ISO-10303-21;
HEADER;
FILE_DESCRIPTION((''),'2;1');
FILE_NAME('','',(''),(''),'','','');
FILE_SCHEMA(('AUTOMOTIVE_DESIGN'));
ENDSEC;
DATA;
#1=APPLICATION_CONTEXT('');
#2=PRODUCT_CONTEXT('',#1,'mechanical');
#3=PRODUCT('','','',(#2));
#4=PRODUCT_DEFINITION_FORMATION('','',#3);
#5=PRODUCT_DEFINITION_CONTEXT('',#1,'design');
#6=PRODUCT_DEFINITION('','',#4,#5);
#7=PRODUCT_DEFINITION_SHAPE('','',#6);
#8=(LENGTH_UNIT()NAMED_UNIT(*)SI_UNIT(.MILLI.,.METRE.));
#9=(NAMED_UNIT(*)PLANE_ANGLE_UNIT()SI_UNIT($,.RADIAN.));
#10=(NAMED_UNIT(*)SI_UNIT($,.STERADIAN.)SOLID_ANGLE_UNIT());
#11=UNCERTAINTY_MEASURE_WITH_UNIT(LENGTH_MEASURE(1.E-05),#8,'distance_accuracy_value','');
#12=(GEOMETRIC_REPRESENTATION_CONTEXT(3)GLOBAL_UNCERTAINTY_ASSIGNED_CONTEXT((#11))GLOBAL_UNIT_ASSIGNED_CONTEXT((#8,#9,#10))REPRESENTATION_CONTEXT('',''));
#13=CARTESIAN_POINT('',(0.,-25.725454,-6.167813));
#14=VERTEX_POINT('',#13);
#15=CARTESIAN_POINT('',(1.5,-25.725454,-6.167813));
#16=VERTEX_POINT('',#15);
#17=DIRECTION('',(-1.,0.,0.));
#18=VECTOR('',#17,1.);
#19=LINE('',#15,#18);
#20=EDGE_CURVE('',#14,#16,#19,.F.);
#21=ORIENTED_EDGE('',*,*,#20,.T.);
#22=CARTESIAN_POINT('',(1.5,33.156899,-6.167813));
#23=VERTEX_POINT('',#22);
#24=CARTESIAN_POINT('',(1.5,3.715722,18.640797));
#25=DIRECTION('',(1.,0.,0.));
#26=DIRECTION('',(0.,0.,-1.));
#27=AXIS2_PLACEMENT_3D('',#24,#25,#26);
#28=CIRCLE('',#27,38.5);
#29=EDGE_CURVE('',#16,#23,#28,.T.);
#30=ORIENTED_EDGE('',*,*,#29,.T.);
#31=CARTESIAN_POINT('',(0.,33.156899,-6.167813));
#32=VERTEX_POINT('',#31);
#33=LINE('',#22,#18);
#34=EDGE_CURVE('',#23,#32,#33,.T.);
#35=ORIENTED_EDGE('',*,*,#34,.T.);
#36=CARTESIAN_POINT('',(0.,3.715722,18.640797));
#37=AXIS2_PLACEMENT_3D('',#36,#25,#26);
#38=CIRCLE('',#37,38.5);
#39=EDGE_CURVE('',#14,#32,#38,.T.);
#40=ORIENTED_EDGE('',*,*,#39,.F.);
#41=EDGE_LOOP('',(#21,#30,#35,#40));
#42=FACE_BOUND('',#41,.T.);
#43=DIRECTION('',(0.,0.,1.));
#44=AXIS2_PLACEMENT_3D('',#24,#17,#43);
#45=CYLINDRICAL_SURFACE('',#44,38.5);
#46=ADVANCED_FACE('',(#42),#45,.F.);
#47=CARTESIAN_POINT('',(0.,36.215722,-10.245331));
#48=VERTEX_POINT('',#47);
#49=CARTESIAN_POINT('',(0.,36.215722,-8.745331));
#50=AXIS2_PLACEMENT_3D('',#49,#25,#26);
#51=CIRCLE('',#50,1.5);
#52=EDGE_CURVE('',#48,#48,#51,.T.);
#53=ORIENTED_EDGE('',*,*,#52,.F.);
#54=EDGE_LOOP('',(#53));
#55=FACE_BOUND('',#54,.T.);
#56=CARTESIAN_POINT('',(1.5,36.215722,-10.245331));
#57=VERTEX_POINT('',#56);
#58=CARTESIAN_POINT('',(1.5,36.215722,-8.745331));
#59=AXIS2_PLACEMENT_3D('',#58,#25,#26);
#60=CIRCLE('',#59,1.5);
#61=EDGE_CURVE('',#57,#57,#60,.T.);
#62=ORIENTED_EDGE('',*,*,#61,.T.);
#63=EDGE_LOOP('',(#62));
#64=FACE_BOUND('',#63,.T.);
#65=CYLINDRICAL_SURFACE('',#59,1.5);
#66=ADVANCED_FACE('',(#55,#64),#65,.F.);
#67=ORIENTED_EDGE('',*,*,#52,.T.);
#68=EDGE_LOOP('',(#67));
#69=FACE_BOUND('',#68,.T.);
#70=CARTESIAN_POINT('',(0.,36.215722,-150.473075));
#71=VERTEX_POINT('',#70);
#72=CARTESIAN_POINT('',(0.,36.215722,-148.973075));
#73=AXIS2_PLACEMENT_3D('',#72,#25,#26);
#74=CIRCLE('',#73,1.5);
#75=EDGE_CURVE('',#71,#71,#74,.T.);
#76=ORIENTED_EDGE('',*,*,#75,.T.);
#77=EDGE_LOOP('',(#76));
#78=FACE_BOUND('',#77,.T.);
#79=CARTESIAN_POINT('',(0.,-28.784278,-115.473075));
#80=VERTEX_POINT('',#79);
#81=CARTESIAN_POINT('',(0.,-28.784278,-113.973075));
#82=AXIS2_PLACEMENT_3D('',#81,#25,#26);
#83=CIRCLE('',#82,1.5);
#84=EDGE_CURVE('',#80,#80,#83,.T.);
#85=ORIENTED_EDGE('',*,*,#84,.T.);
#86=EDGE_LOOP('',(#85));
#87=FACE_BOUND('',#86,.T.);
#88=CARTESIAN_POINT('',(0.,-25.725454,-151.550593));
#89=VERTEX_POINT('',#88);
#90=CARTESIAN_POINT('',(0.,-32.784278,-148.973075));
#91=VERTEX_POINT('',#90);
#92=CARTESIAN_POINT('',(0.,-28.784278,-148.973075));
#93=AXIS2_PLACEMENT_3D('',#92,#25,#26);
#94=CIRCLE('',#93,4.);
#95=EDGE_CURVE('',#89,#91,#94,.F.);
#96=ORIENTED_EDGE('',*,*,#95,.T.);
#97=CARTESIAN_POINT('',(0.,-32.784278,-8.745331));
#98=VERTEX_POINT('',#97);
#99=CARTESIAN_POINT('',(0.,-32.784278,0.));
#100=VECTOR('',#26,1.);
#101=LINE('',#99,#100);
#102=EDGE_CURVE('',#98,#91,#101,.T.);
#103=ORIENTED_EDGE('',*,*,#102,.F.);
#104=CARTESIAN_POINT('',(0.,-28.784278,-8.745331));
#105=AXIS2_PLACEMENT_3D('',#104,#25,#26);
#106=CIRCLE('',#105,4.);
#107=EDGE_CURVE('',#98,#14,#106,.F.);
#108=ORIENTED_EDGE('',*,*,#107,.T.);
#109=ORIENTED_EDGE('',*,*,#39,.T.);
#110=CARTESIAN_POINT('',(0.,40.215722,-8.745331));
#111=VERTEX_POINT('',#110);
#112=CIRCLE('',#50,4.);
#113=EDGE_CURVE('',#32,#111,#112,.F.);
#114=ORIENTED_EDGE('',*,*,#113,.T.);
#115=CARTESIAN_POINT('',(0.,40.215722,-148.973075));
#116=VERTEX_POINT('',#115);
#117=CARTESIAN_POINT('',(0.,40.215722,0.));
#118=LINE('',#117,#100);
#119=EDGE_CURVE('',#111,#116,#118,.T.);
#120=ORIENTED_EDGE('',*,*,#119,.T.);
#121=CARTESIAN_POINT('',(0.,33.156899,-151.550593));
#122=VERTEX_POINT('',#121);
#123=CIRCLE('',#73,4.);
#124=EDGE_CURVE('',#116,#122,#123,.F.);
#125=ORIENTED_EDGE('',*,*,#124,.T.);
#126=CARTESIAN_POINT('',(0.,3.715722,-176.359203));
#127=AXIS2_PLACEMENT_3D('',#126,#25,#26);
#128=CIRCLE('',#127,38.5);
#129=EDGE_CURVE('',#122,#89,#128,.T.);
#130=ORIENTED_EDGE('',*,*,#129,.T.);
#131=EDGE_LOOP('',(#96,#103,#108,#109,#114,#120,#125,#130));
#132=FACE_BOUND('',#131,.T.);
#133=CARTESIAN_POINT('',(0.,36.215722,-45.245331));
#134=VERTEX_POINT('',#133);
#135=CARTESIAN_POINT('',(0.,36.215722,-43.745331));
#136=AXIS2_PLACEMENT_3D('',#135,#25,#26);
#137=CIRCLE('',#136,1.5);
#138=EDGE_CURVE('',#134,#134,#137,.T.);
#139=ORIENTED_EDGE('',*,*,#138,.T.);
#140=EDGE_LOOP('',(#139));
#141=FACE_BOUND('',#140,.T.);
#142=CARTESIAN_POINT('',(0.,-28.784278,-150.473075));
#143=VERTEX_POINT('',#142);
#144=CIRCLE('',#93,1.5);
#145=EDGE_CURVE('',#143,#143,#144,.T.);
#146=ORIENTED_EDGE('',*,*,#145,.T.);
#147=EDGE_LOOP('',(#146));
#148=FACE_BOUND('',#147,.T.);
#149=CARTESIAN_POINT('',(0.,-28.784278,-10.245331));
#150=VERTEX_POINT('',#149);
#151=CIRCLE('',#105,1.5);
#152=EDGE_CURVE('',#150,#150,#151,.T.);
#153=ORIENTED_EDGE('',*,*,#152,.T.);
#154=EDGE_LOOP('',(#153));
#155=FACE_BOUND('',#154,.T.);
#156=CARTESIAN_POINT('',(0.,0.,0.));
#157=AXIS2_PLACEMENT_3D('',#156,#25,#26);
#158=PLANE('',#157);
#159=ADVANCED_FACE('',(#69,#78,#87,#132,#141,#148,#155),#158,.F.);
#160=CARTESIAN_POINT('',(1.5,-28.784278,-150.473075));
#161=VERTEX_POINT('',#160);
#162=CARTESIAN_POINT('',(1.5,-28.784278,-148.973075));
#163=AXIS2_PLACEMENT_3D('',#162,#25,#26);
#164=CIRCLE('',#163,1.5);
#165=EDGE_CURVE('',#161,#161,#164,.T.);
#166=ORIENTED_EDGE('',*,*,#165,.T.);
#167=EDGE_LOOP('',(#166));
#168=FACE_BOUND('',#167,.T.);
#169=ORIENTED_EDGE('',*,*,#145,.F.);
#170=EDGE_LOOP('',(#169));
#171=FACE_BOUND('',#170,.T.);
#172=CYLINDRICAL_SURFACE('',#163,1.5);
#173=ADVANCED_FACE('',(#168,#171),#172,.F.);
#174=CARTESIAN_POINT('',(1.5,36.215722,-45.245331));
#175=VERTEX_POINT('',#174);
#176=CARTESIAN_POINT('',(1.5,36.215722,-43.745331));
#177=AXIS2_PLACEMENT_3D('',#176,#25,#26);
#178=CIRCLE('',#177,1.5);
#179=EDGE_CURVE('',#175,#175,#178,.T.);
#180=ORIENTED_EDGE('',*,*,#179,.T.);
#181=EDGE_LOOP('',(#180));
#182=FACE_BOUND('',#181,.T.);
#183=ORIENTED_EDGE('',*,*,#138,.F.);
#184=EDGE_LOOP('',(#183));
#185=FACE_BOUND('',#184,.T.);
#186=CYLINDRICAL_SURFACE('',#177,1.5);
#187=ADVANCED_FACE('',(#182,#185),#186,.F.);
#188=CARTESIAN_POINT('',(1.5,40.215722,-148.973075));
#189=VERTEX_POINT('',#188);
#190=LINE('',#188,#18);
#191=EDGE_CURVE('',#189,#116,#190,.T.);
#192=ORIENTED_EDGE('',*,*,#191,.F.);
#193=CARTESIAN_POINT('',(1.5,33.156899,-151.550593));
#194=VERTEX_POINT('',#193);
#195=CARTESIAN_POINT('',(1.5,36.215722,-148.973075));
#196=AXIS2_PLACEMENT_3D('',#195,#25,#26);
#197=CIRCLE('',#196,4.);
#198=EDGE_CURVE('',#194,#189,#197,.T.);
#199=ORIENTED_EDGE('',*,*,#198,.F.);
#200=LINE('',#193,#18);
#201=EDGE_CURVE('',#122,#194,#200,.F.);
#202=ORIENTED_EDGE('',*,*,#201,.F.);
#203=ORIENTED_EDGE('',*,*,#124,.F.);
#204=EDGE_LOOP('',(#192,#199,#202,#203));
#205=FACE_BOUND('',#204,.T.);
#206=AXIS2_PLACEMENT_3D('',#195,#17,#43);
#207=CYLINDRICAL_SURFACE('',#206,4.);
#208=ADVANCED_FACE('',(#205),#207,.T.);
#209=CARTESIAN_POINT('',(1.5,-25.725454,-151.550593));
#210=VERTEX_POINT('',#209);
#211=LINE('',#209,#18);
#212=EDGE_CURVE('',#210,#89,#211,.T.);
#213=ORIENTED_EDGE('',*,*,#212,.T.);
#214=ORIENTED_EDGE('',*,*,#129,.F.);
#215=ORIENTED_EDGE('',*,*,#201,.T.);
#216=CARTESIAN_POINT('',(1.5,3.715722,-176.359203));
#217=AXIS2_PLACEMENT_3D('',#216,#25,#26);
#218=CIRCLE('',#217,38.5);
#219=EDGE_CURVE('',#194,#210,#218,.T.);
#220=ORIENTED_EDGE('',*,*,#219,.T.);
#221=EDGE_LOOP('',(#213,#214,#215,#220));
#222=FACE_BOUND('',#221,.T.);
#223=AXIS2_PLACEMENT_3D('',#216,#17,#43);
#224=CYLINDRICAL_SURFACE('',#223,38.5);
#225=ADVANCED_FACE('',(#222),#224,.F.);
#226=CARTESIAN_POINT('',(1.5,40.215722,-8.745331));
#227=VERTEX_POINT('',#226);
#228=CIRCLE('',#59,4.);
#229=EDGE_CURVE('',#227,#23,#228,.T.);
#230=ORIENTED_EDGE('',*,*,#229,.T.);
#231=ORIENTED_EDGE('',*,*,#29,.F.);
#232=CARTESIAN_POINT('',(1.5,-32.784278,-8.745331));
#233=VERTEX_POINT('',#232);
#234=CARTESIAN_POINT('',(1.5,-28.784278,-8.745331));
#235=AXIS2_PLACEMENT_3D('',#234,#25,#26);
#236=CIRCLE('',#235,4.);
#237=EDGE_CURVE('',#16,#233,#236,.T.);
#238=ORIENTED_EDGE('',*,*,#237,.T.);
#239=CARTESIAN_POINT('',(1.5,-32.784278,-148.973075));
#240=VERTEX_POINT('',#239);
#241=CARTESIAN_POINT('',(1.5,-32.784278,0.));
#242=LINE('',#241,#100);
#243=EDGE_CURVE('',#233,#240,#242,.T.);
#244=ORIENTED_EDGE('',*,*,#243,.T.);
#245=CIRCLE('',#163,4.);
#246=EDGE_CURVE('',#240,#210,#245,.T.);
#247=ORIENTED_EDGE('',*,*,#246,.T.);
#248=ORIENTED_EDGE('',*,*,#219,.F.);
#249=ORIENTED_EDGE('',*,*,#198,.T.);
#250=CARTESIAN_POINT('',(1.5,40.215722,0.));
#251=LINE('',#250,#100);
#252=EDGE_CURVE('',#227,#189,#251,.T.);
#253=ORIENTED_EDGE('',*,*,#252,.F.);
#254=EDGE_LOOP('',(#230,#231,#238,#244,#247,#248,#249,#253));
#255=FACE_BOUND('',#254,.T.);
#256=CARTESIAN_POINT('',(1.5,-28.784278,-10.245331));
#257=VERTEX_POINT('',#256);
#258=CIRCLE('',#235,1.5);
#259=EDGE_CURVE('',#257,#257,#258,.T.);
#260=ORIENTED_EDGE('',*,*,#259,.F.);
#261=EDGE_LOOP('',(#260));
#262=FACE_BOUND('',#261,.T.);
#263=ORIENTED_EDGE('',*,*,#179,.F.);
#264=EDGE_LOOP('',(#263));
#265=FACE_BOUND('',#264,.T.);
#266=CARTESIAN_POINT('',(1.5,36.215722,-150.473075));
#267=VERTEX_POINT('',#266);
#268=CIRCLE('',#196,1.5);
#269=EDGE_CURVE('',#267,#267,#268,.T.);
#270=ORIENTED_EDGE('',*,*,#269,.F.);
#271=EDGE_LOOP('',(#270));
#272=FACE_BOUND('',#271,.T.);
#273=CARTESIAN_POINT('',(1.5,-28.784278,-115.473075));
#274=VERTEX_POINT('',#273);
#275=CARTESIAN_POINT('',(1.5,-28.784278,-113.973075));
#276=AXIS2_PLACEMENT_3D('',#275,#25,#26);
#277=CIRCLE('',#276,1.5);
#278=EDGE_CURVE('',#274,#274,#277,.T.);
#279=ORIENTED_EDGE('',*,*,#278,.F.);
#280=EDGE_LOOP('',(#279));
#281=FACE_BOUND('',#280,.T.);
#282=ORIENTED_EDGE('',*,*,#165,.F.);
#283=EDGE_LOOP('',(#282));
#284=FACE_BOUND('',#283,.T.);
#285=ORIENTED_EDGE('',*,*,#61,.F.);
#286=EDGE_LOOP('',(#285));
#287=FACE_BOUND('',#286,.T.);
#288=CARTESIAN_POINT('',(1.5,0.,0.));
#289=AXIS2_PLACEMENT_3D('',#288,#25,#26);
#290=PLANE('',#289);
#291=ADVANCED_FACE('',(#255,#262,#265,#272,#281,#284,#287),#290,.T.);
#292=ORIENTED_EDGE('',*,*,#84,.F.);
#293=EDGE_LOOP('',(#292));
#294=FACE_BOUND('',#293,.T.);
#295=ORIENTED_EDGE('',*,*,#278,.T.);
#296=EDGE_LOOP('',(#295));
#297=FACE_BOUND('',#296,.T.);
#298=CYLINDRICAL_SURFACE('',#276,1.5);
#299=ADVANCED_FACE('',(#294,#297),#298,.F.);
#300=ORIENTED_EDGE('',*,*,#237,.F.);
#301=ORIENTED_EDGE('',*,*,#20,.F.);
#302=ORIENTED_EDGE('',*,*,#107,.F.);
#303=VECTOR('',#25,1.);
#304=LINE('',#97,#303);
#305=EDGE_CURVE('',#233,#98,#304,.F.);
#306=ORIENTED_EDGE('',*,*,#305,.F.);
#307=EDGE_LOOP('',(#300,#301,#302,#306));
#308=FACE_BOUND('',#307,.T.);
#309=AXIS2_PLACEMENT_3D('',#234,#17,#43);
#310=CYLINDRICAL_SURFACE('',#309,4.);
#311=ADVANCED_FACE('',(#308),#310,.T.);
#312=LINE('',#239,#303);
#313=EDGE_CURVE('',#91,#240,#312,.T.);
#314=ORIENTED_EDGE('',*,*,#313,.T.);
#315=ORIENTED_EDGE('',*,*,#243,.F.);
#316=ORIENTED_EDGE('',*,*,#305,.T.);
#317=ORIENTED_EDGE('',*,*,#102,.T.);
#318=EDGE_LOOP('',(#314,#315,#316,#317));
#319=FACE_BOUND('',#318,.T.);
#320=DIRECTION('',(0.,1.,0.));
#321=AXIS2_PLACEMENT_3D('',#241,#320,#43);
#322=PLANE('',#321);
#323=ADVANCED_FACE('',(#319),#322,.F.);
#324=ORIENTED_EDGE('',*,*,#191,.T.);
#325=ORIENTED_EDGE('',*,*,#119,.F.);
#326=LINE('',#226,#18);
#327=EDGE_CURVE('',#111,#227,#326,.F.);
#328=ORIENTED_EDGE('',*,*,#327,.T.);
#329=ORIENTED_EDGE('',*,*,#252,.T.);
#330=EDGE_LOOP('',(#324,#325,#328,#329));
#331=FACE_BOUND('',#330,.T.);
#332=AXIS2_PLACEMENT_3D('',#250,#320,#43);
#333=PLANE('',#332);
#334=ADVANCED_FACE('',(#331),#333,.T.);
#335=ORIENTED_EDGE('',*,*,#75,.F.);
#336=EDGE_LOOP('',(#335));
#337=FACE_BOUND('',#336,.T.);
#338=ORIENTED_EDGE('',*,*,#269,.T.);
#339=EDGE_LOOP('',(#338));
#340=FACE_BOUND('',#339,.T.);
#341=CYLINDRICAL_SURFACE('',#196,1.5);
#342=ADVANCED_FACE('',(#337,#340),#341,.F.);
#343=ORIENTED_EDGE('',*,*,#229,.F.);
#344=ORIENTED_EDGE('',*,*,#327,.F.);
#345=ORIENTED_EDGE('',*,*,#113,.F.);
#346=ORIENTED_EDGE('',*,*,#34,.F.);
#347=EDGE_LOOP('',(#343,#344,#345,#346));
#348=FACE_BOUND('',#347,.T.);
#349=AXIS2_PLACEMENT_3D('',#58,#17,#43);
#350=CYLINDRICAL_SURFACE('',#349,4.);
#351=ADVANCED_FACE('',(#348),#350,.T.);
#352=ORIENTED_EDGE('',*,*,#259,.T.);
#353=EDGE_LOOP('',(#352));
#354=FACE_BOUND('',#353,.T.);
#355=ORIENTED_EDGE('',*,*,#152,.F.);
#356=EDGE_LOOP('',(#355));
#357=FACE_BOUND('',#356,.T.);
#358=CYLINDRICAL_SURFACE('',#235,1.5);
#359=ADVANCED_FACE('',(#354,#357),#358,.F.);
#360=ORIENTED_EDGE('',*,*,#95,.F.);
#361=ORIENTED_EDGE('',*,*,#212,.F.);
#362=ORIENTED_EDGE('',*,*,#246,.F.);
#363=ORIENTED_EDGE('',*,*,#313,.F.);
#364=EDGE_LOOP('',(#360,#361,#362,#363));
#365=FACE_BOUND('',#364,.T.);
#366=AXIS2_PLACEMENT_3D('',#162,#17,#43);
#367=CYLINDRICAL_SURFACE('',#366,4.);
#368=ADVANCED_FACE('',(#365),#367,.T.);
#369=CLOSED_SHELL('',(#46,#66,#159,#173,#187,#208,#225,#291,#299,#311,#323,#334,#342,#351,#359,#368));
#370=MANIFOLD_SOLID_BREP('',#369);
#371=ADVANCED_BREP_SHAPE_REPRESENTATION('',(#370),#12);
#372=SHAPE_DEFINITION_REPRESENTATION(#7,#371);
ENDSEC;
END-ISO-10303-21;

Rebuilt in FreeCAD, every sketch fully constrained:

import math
import FreeCAD as App
import Part
import Sketcher

V = App.Vector
Q = App.Units.Quantity


def edges_at(feature, points):
    """Names of the edges that pass closest to the given points."""
    edges = feature.Shape.Edges
    near = lambda p: min(range(len(edges)), key=lambda i: edges[i].distToShape(Part.Vertex(*p))[0])
    return sorted({f"Edge{near(p) + 1}" for p in points})

doc = App.newDocument("Part")
body = doc.addObject("PartDesign::Body", "Body")

# Sketch on YZ plane
sketch1 = body.newObject("Sketcher::SketchObject", "Sketch")
sketch1.AttachmentSupport = (doc.getObject("YZ_Plane"), [""])
sketch1.MapMode = "FlatFace"
sketch1.addGeometry(Part.LineSegment(V(40.215722, -164.111754, 0), V(40.215722, 6.393348, 0)), False)
sketch1.addGeometry(Part.ArcOfCircle(Part.Circle(V(3.715722, 18.640797, 0), V(0, 0, 1), 38.5), math.radians(-90), math.radians(-18.549)), False)
sketch1.addGeometry(Part.ArcOfCircle(Part.Circle(V(3.715722, 18.640797, 0), V(0, 0, 1), 38.5), math.radians(-161.451), math.radians(-90)), False)
sketch1.addGeometry(Part.LineSegment(V(-32.784278, 6.393348, 0), V(-32.784278, -164.111754, 0)), False)
sketch1.addGeometry(Part.ArcOfCircle(Part.Circle(V(3.715722, -176.359203, 0), V(0, 0, 1), 38.5), math.radians(18.549), math.radians(161.451)), False)
sketch1.addConstraint(Sketcher.Constraint("Coincident", 0, 2, 1, 2))
sketch1.addConstraint(Sketcher.Constraint("Tangent", 1, 1, 2, 2))
sketch1.addConstraint(Sketcher.Constraint("Coincident", 2, 1, 3, 1))
sketch1.addConstraint(Sketcher.Constraint("Coincident", 3, 2, 4, 2))
sketch1.addConstraint(Sketcher.Constraint("Coincident", 4, 1, 0, 1))
sketch1.addConstraint(Sketcher.Constraint("Vertical", 0))
sketch1.addConstraint(Sketcher.Constraint("Vertical", 3))
sketch1.addConstraint(Sketcher.Constraint("Equal", 1, 2))
sketch1.addConstraint(Sketcher.Constraint("Equal", 2, 4))
sketch1.addConstraint(Sketcher.Constraint("Horizontal", 0, 2, 2, 1))
sketch1.addConstraint(Sketcher.Constraint("Horizontal", 3, 2, 4, 1))
sketch1.addConstraint(Sketcher.Constraint("Vertical", 4, 3, 1, 1))
sketch1.addConstraint(Sketcher.Constraint("Radius", 1, Q("38.5 mm")))
sketch1.addConstraint(Sketcher.Constraint("DistanceY", 4, 3, 1, 3, Q("195 mm")))
sketch1.addConstraint(Sketcher.Constraint("DistanceX", 2, 1, 0, 2, Q("73 mm")))
sketch1.addConstraint(Sketcher.Constraint("DistanceY", -1, 1, 0, 2, Q("6.393348 mm")))
sketch1.addConstraint(Sketcher.Constraint("DistanceX", -1, 1, 1, 3, Q("3.715722 mm")))
pad1 = body.newObject("PartDesign::Pad", "Pad")
pad1.Profile = sketch1
pad1.Length = 1.5
doc.recompute()

fillet = body.newObject("PartDesign::Fillet", "Fillet")
fillet.Base = (pad1, edges_at(pad1, [
    (0.75, -32.784, -164.112),
    (0.75, -32.784, 6.393),
    (0.75, 40.216, 6.393),
    (0.75, 40.216, -164.112),
]))
fillet.Radius = 4

# Sketch on YZ plane
sketch2 = body.newObject("Sketcher::SketchObject", "Sketch001")
sketch2.AttachmentSupport = (doc.getObject("YZ_Plane"), [""])
sketch2.MapMode = "FlatFace"
sketch2.AttachmentOffset = App.Placement(V(0, 0, 1.5), App.Rotation())
sketch2.addGeometry(Part.Circle(V(36.215722, -8.745331, 0), V(0, 0, 1), 1.5), False)
sketch2.addGeometry(Part.Circle(V(36.215722, -148.973075, 0), V(0, 0, 1), 1.5), False)
sketch2.addGeometry(Part.Circle(V(-28.784278, -148.973075, 0), V(0, 0, 1), 1.5), False)
sketch2.addGeometry(Part.Circle(V(-28.784278, -8.745331, 0), V(0, 0, 1), 1.5), False)
sketch2.addGeometry(Part.Circle(V(36.215722, -43.745331, 0), V(0, 0, 1), 1.5), False)
sketch2.addGeometry(Part.Circle(V(-28.784278, -113.973075, 0), V(0, 0, 1), 1.5), False)
sketch2.addConstraint(Sketcher.Constraint("Equal", 0, 1))
sketch2.addConstraint(Sketcher.Constraint("Equal", 1, 2))
sketch2.addConstraint(Sketcher.Constraint("Equal", 2, 3))
sketch2.addConstraint(Sketcher.Constraint("Equal", 3, 4))
sketch2.addConstraint(Sketcher.Constraint("Equal", 4, 5))
sketch2.addConstraint(Sketcher.Constraint("Horizontal", 1, 3, 2, 3))
sketch2.addConstraint(Sketcher.Constraint("Horizontal", 0, 3, 3, 3))
sketch2.addConstraint(Sketcher.Constraint("Vertical", 0, 3, 1, 3))
sketch2.addConstraint(Sketcher.Constraint("Vertical", 2, 3, 3, 3))
sketch2.addConstraint(Sketcher.Constraint("Vertical", 1, 3, 4, 3))
sketch2.addConstraint(Sketcher.Constraint("Vertical", 3, 3, 5, 3))
sketch2.addConstraint(Sketcher.Constraint("Diameter", 0, Q("3 mm")))
sketch2.addConstraint(Sketcher.Constraint("DistanceX", 2, 3, 1, 3, Q("65 mm")))
sketch2.addConstraint(Sketcher.Constraint("DistanceY", 4, 3, 0, 3, Q("35 mm")))
sketch2.addConstraint(Sketcher.Constraint("DistanceY", 2, 3, 5, 3, Q("35 mm")))
sketch2.addConstraint(Sketcher.Constraint("DistanceY", 0, 3, -1, 1, Q("8.745331 mm")))
sketch2.addConstraint(Sketcher.Constraint("DistanceX", -1, 1, 0, 3, Q("36.215722 mm")))
sketch2.addConstraint(Sketcher.Constraint("DistanceY", 1, 3, -1, 1, Q("148.973075 mm")))
doc.recompute()
hole = body.newObject("PartDesign::Hole", "Hole")
hole.Profile = sketch2
hole.ThreadType = "None"
hole.Diameter = 3
hole.DepthType = "Dimension"
hole.Depth = 17.29
hole.DrillPoint = "Angled"
hole.DrillPointAngle = 118

doc.recompute()
